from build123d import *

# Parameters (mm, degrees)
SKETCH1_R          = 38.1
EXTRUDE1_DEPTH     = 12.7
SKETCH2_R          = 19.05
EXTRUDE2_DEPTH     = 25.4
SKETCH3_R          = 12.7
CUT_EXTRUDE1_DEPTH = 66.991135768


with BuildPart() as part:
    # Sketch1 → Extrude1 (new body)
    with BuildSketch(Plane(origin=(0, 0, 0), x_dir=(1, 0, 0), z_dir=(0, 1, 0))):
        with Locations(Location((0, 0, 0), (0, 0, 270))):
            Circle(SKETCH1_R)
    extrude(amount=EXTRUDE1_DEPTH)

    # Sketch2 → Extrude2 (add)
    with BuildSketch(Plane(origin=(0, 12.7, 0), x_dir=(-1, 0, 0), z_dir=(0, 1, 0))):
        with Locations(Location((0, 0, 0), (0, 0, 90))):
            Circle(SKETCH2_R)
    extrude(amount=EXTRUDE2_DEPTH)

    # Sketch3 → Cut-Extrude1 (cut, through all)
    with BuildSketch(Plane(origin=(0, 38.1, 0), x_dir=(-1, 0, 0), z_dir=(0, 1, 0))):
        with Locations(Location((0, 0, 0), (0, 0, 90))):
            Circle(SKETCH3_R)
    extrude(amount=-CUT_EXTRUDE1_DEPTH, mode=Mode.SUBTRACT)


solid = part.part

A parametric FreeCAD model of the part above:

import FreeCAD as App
import Part
import Sketcher
Q = App.Units.Quantity

doc = App.newDocument("Part")
body = doc.addObject("PartDesign::Body", "Body")

# Sketch on XZ plane
sketch1 = doc.addObject("Sketcher::SketchObject", "Sketch")
body.addObject(sketch1)
sketch1.AttachmentSupport = (doc.XZ_Plane, [""])
sketch1.MapMode = "FlatFace"
sketch1.addGeometry(Part.Circle(App.Vector(0, 0, 0), App.Vector(0, 0, 1), 38), False)
sketch1.addConstraint([
    Sketcher.Constraint("Coincident", 0, 3, -1, 1),
    Sketcher.Constraint("Diameter", 0, Q("3 in")),
])
pad1 = doc.addObject("PartDesign::Pad", "Pad")
body.addObject(pad1)
pad1.Profile = sketch1
pad1.Length = Q("0.5 in")
pad1.Reversed = True

# Sketch on XZ plane
sketch2 = doc.addObject("Sketcher::SketchObject", "Sketch001")
body.addObject(sketch2)
sketch2.AttachmentSupport = (doc.XZ_Plane, [""])
sketch2.MapMode = "FlatFace"
sketch2.AttachmentOffset = App.Placement(App.Vector(0, 0, -0.5 * 25.4), App.Rotation())
sketch2.addGeometry(Part.Circle(App.Vector(0, 0, 0), App.Vector(0, 0, 1), 19), False)
sketch2.addConstraint([
    Sketcher.Constraint("Coincident", 0, 3, -1, 1),
    Sketcher.Constraint("Diameter", 0, Q("1.5 in")),
])
pad2 = doc.addObject("PartDesign::Pad", "Pad001")
body.addObject(pad2)
pad2.Profile = sketch2
pad2.Length = Q("1 in")
pad2.Reversed = True

# Sketch on XZ plane
sketch3 = doc.addObject("Sketcher::SketchObject", "Sketch002")
body.addObject(sketch3)
sketch3.AttachmentSupport = (doc.XZ_Plane, [""])
sketch3.MapMode = "FlatFace"
sketch3.AttachmentOffset = App.Placement(App.Vector(0, 0, -1.5 * 25.4), App.Rotation())
sketch3.addGeometry(Part.Circle(App.Vector(0, 0, 0), App.Vector(0, 0, 1), 13), False)
sketch3.addConstraint([
    Sketcher.Constraint("Coincident", 0, 3, -1, 1),
    Sketcher.Constraint("Diameter", 0, Q("1 in")),
])
pocket1 = doc.addObject("PartDesign::Pocket", "Pocket")
body.addObject(pocket1)
pocket1.Profile = sketch3
pocket1.Type = "ThroughAll"
pocket1.Reversed = True

doc.recompute()
